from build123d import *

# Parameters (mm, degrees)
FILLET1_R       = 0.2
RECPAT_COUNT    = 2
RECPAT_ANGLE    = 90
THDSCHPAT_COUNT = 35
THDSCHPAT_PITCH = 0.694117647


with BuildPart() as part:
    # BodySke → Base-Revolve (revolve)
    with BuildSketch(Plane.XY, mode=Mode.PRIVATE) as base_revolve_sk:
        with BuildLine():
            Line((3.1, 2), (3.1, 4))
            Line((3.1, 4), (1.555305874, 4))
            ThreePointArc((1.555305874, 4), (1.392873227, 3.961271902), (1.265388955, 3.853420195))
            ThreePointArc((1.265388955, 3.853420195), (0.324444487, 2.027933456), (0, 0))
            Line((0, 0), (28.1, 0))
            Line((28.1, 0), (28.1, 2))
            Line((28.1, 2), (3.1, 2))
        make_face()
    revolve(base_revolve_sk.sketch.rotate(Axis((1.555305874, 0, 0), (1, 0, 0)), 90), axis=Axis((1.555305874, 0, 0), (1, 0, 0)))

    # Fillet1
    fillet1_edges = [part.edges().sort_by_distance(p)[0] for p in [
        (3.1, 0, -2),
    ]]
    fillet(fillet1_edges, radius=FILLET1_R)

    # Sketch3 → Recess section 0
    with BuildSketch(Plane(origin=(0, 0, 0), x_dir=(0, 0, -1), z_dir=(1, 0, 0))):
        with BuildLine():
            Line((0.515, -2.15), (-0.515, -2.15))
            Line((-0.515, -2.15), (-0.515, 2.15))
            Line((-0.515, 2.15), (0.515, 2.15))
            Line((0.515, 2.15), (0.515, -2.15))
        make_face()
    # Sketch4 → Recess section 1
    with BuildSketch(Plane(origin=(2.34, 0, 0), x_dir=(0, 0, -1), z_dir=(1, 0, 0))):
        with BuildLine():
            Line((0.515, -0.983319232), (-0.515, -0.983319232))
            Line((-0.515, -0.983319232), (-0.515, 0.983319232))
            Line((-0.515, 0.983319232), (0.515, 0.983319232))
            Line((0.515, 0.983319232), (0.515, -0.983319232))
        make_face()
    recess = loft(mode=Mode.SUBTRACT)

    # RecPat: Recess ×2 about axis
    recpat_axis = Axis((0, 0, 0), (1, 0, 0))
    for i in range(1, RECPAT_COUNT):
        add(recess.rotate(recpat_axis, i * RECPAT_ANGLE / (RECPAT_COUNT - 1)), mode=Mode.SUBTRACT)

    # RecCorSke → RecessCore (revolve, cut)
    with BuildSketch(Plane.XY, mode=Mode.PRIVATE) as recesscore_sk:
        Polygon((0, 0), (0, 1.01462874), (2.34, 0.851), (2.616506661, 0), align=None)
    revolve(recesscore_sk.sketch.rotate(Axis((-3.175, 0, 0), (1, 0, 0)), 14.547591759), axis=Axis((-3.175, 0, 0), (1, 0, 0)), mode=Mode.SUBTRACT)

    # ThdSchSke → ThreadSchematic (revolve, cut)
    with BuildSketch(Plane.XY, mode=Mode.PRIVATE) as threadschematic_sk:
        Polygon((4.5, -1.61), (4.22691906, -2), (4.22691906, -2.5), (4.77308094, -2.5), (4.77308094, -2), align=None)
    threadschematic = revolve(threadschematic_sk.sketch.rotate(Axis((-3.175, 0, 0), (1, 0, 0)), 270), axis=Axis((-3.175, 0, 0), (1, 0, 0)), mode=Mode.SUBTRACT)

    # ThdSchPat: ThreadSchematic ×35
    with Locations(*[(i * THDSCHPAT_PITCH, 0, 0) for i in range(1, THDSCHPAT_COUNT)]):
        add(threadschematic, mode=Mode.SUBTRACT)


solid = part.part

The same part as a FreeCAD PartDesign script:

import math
import FreeCAD as App
import Part
import Sketcher

V = App.Vector
Q = App.Units.Quantity


def edges_at(feature, points):
    """Names of the edges that pass closest to the given points."""
    edges = feature.Shape.Edges
    near = lambda p: min(range(len(edges)), key=lambda i: edges[i].distToShape(Part.Vertex(*p))[0])
    return sorted({f"Edge{near(p) + 1}" for p in points})


def add_polygon(sketch, points):
    """Adds a closed chain of lines whose ends are joined by coincident constraints."""
    first, n = sketch.GeometryCount, len(points)
    for a, b in zip(points, points[1:] + points[:1]):
        sketch.addGeometry(Part.LineSegment(App.Vector(*a, 0), App.Vector(*b, 0)), False)
    for i in range(n):
        sketch.addConstraint(Sketcher.Constraint("Coincident", first + i, 2, first + (i + 1) % n, 1))

doc = App.newDocument("Part")
body = doc.addObject("PartDesign::Body", "Body")

# Sketch on XY plane
sketch1 = body.newObject("Sketcher::SketchObject", "Sketch")
sketch1.AttachmentSupport = (doc.getObject("XY_Plane"), [""])
sketch1.MapMode = "FlatFace"
sketch1.addGeometry(Part.LineSegment(V(3.1, 2, 0), V(3.1, 4, 0)), False)
sketch1.addGeometry(Part.LineSegment(V(3.1, 4, 0), V(1.555306, 4, 0)), False)
sketch1.addGeometry(Part.ArcOfCircle(Part.Circle(V(1.555306, 3.64, 0), V(0, 0, 1), 0.36), math.radians(90), math.radians(143.641633)), False)
sketch1.addGeometry(Part.ArcOfCircle(Part.Circle(V(6.5, 0, 0), V(0, 0, 1), 6.5), math.radians(143.641632), math.radians(180)), False)
sketch1.addGeometry(Part.LineSegment(V(0, 0, 0), V(28.1, 0, 0)), False)
sketch1.addGeometry(Part.LineSegment(V(28.1, 0, 0), V(28.1, 2, 0)), False)
sketch1.addGeometry(Part.LineSegment(V(28.1, 2, 0), V(3.1, 2, 0)), False)
sketch1.addConstraint(Sketcher.Constraint("Coincident", 0, 2, 1, 1))
sketch1.addConstraint(Sketcher.Constraint("Tangent", 1, 2, 2, 1))
sketch1.addConstraint(Sketcher.Constraint("Tangent", 2, 2, 3, 1))
sketch1.addConstraint(Sketcher.Constraint("Coincident", 3, 2, 4, 1))
sketch1.addConstraint(Sketcher.Constraint("Coincident", 4, 2, 5, 1))
sketch1.addConstraint(Sketcher.Constraint("Coincident", 5, 2, 6, 1))
sketch1.addConstraint(Sketcher.Constraint("Coincident", 6, 2, 0, 1))
sketch1.addConstraint(Sketcher.Constraint("Vertical", 0))
sketch1.addConstraint(Sketcher.Constraint("Horizontal", 1))
sketch1.addConstraint(Sketcher.Constraint("Horizontal", 4))
sketch1.addConstraint(Sketcher.Constraint("Vertical", 5))
sketch1.addConstraint(Sketcher.Constraint("Horizontal", 6))
sketch1.addConstraint(Sketcher.Constraint("Coincident", 3, 2, -1, 1))
sketch1.addConstraint(Sketcher.Constraint("PointOnObject", 3, 3, -1))
sketch1.addConstraint(Sketcher.Constraint("Equal", 0, 5))
sketch1.addConstraint(Sketcher.Constraint("Radius", 3, Q("6.5 mm")))
sketch1.addConstraint(Sketcher.Constraint("DistanceX", 6, 2, 6, 1, Q("25 mm")))
sketch1.addConstraint(Sketcher.Constraint("DistanceY", 0, 1, 0, 2, Q("2 mm")))
sketch1.addConstraint(Sketcher.Constraint("Radius", 2, Q("0.36 mm")))
sketch1.addConstraint(Sketcher.Constraint("DistanceX", 4, 1, 4, 2, Q("28.1 mm")))
revolution = body.newObject("PartDesign::Revolution", "Revolution")
revolution.Profile = sketch1
revolution.ReferenceAxis = (sketch1, ["H_Axis"])
revolution.Angle = 360
doc.recompute()

fillet = body.newObject("PartDesign::Fillet", "Fillet")
fillet.Base = (revolution, edges_at(revolution, [(3.1, 0, -2)]))
fillet.Radius = 0.2

# Sketch on YZ plane
sketch2 = body.newObject("Sketcher::SketchObject", "Sketch001")
sketch2.AttachmentSupport = (doc.getObject("YZ_Plane"), [""])
sketch2.MapMode = "FlatFace"
add_polygon(sketch2, [(-2.15, 0.515), (-2.15, -0.515), (2.15, -0.515), (2.15, 0.515)])  # lines 0-3
sketch2.addConstraint(Sketcher.Constraint("Vertical", 0))
sketch2.addConstraint(Sketcher.Constraint("Horizontal", 1))
sketch2.addConstraint(Sketcher.Constraint("Vertical", 2))
sketch2.addConstraint(Sketcher.Constraint("Horizontal", 3))
sketch2.addConstraint(Sketcher.Constraint("Symmetric", 0, 2, 2, 2, -1, 1))
sketch2.addConstraint(Sketcher.Constraint("DistanceX", 1, 1, 1, 2, Q("4.3 mm")))
sketch2.addConstraint(Sketcher.Constraint("DistanceY", 0, 2, 0, 1, Q("1.03 mm")))

# Sketch on YZ plane
sketch3 = body.newObject("Sketcher::SketchObject", "Sketch002")
sketch3.AttachmentSupport = (doc.getObject("YZ_Plane"), [""])
sketch3.MapMode = "FlatFace"
sketch3.AttachmentOffset = App.Placement(V(0, 0, 2.34), App.Rotation())
add_polygon(sketch3, [(-0.983319, 0.515), (-0.983319, -0.515), (0.983319, -0.515), (0.983319, 0.515)])  # lines 0-3
sketch3.addConstraint(Sketcher.Constraint("Vertical", 0))
sketch3.addConstraint(Sketcher.Constraint("Horizontal", 1))
sketch3.addConstraint(Sketcher.Constraint("Vertical", 2))
sketch3.addConstraint(Sketcher.Constraint("Horizontal", 3))
sketch3.addConstraint(Sketcher.Constraint("Symmetric", 0, 2, 2, 2, -1, 1))
sketch3.addConstraint(Sketcher.Constraint("DistanceY", 0, 2, 0, 1, Q("1.03 mm")))
sketch3.addConstraint(Sketcher.Constraint("DistanceX", 1, 1, 1, 2, Q("1.966638 mm")))

subtractiveloft = body.newObject("PartDesign::SubtractiveLoft", "SubtractiveLoft")
subtractiveloft.Profile = sketch2
subtractiveloft.Sections = [sketch3]
doc.recompute()

polarpattern = body.newObject("PartDesign::PolarPattern", "PolarPattern")
polarpattern.Originals = [subtractiveloft]
polarpattern.Axis = (doc.getObject("X_Axis"), [""])
polarpattern.Angle = 90
polarpattern.Occurrences = 2
body.Tip = polarpattern

# Sketch on XY plane
sketch4 = body.newObject("Sketcher::SketchObject", "Sketch003")
sketch4.AttachmentSupport = (doc.getObject("XY_Plane"), [""])
sketch4.MapMode = "FlatFace"
add_polygon(sketch4, [(0, 1.014629), (0, 0), (2.616507, 0), (2.34, 0.851)])  # lines 0-3
sketch4.addConstraint(Sketcher.Constraint("Vertical", 0))
sketch4.addConstraint(Sketcher.Constraint("Horizontal", 1))
sketch4.addConstraint(Sketcher.Constraint("Coincident", 0, 2, -1, 1))
sketch4.addConstraint(Sketcher.Constraint("Angle", 2, Q("108 deg")))
sketch4.addConstraint(Sketcher.Constraint("Angle", 3, Q("176 deg")))
sketch4.addConstraint(Sketcher.Constraint("DistanceX", -1, 1, 2, 2, Q("2.34 mm")))
sketch4.addConstraint(Sketcher.Constraint("DistanceY", -1, 1, 2, 2, Q("0.851 mm")))
groove = body.newObject("PartDesign::Groove", "Groove")
groove.Profile = sketch4
groove.ReferenceAxis = (sketch4, ["H_Axis"])
groove.Angle = 360

# Sketch on XY plane
sketch5 = body.newObject("Sketcher::SketchObject", "Sketch004")
sketch5.AttachmentSupport = (doc.getObject("XY_Plane"), [""])
sketch5.MapMode = "FlatFace"
add_polygon(sketch5, [(4.5, -1.61), (4.226919, -2), (4.226919, -2.5), (4.773081, -2.5), (4.773081, -2)])  # lines 0-4
sketch5.addConstraint(Sketcher.Constraint("Vertical", 1))
sketch5.addConstraint(Sketcher.Constraint("Horizontal", 2))
sketch5.addConstraint(Sketcher.Constraint("Vertical", 3))
sketch5.addConstraint(Sketcher.Constraint("Horizontal", 0, 2, 3, 2))
sketch5.addConstraint(Sketcher.Constraint("Equal", 0, 4))
sketch5.addConstraint(Sketcher.Constraint("Angle", 0, Q("-125 deg")))
sketch5.addConstraint(Sketcher.Constraint("DistanceY", 1, 2, 1, 1, Q("0.5 mm")))
sketch5.addConstraint(Sketcher.Constraint("DistanceY", 0, 2, -1, 1, Q("2 mm")))
sketch5.addConstraint(Sketcher.Constraint("DistanceX", -1, 1, 4, 2, Q("4.5 mm")))
sketch5.addConstraint(Sketcher.Constraint("DistanceY", 4, 2, -1, 1, Q("1.61 mm")))
groove2 = body.newObject("PartDesign::Groove", "Groove001")
groove2.Profile = sketch5
groove2.ReferenceAxis = (sketch5, ["H_Axis"])
groove2.Angle = 360
doc.recompute()

linearpattern = body.newObject("PartDesign::LinearPattern", "LinearPattern")
linearpattern.Originals = [groove2]
linearpattern.Direction = (doc.getObject("X_Axis"), [""])
linearpattern.Mode = "offset"
linearpattern.Offset = 0.694118
linearpattern.Occurrences = 35
body.Tip = linearpattern

doc.recompute()
